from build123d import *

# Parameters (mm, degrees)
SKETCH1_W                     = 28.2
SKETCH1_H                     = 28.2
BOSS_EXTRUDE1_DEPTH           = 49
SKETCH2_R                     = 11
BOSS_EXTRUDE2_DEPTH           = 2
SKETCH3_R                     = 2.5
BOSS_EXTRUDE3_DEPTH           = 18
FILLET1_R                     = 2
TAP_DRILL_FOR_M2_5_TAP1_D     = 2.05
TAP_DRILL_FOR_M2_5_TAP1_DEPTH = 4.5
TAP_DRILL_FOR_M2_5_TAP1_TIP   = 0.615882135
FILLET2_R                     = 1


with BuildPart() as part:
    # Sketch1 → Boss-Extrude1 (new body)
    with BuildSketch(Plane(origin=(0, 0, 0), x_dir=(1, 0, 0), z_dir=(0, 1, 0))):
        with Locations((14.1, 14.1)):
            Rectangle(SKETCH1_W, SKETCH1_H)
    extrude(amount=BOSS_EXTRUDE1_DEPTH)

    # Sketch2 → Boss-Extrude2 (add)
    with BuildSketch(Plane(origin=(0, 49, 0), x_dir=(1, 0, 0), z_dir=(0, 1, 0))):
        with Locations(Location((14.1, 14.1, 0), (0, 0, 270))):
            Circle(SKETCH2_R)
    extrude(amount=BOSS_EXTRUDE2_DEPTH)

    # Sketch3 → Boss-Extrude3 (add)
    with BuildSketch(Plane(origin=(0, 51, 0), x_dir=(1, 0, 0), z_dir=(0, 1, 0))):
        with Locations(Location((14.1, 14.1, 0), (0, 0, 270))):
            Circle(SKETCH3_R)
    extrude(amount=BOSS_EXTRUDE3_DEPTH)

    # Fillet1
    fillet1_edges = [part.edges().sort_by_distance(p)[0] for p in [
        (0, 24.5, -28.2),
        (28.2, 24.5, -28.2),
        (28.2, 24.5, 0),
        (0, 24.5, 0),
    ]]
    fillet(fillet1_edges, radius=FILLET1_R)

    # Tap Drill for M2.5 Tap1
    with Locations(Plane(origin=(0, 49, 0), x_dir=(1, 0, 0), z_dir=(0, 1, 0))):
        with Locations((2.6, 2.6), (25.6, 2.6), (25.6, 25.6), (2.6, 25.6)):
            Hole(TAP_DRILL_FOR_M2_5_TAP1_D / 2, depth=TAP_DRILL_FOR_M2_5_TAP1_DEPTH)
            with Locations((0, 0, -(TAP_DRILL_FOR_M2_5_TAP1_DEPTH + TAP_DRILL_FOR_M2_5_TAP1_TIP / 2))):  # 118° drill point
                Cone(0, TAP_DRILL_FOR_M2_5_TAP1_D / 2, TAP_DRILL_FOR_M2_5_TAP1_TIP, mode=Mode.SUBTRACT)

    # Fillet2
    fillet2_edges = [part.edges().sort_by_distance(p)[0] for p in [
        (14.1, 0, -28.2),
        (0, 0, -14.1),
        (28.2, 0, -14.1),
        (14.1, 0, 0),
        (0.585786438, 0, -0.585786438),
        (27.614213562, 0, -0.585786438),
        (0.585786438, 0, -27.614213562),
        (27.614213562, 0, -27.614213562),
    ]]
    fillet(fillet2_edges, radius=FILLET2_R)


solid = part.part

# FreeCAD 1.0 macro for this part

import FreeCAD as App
import Part
import Sketcher
from FreeCAD import Vector


def edges_at(feature, points):
    """Names of the edges that pass closest to the given points."""
    edges = feature.Shape.Edges
    near = lambda p: min(range(len(edges)), key=lambda i: edges[i].distToShape(Part.Vertex(*p))[0])
    return sorted({f"Edge{near(p) + 1}" for p in points})


def add_polygon(sketch, points):
    """Adds a closed chain of lines whose ends are joined by coincident constraints."""
    first, n = sketch.GeometryCount, len(points)
    for a, b in zip(points, points[1:] + points[:1]):
        sketch.addGeometry(Part.LineSegment(App.Vector(*a, 0), App.Vector(*b, 0)), False)
    for i in range(n):
        sketch.addConstraint(Sketcher.Constraint("Coincident", first + i, 2, first + (i + 1) % n, 1))

doc = App.newDocument("Part")
params = doc.addObject("Spreadsheet::Sheet", "Params")
for row, (alias, value) in enumerate([
    ("sketch1_width", "28.2 mm"),
    ("pad1_length", "49 mm"),
    ("sketch2_diameter", "22 mm"),
    ("pad2_length", "2 mm"),
    ("sketch3_diameter", "5 mm"),
    ("pad3_length", "18 mm"),
    ("fillet_radius", "2 mm"),
    ("sketch4_diameter", "2.05 mm"),
    ("hole_diameter", "2.05 mm"),
    ("hole_depth", "4.5 mm"),
    ("fillet2_radius", "1 mm"),
], start=1):
    params.set(f"A{row}", alias)
    params.set(f"B{row}", "=" + value)
    params.setAlias(f"B{row}", alias)

body = doc.addObject("PartDesign::Body", "Body")

# Sketch on XZ plane
sketch1 = body.newObject("Sketcher::SketchObject", "Sketch")
sketch1.AttachmentSupport = (doc.getObject("XZ_Plane"), [""])
sketch1.MapMode = "FlatFace"
add_polygon(sketch1, [(0, -28), (0, 0), (28, 0), (28, -28)])  # lines 0-3
sketch1.addConstraint([
    Sketcher.Constraint("Vertical", 0),
    Sketcher.Constraint("Horizontal", 1),
    Sketcher.Constraint("Vertical", 2),
    Sketcher.Constraint("Horizontal", 3),
    Sketcher.Constraint("Coincident", 0, 2, -1, 1),
    Sketcher.Constraint("Equal", 3, 0),
    Sketcher.Constraint("DistanceX", 1, 1, 1, 2, 28.2),
])
sketch1.setExpression("Constraints[10]", "Params.sketch1_width")
pad1 = body.newObject("PartDesign::Pad", "Pad")
pad1.Profile = sketch1
pad1.setExpression("Length", "Params.pad1_length")
pad1.Reversed = True

# Sketch on XZ plane
sketch2 = body.newObject("Sketcher::SketchObject", "Sketch001")
sketch2.AttachmentSupport = (doc.getObject("XZ_Plane"), [""])
sketch2.MapMode = "FlatFace"
sketch2.AttachmentOffset = App.Placement(Vector(0, 0, -49), App.Rotation())
sketch2.addGeometry(Part.Circle(Vector(14, -14, 0), Vector(0, 0, 1), 11), False)
sketch2.addConstraint([
    Sketcher.Constraint("Diameter", 0, 22.0),
    Sketcher.Constraint("DistanceX", -1, 1, 0, 3, 14.1),
    Sketcher.Constraint("DistanceY", 0, 3, -1, 1, 14.1),
])
sketch2.setExpression("Constraints[0]", "Params.sketch2_diameter")
pad2 = body.newObject("PartDesign::Pad", "Pad001")
pad2.Profile = sketch2
pad2.setExpression("Length", "Params.pad2_length")
pad2.Reversed = True

# Sketch on XZ plane
sketch3 = body.newObject("Sketcher::SketchObject", "Sketch002")
sketch3.AttachmentSupport = (doc.getObject("XZ_Plane"), [""])
sketch3.MapMode = "FlatFace"
sketch3.AttachmentOffset = App.Placement(Vector(0, 0, -51), App.Rotation())
sketch3.addGeometry(Part.Circle(Vector(14.1, -14.1, 0), Vector(0, 0, 1), 2.5), False)
sketch3.addConstraint([
    Sketcher.Constraint("Diameter", 0, 5.0),
    Sketcher.Constraint("DistanceX", -1, 1, 0, 3, 14.1),
    Sketcher.Constraint("DistanceY", 0, 3, -1, 1, 14.1),
])
sketch3.setExpression("Constraints[0]", "Params.sketch3_diameter")
pad3 = body.newObject("PartDesign::Pad", "Pad002")
pad3.Profile = sketch3
pad3.setExpression("Length", "Params.pad3_length")
pad3.Reversed = True
doc.recompute()

fillet = body.newObject("PartDesign::Fillet", "Fillet")
fillet.Base = (pad3, edges_at(pad3, [
    (0, 24.5, -28.2),
    (28.2, 24.5, -28.2),
    (28.2, 24.5, 0),
    (0, 24.5, 0),
]))
fillet.setExpression("Radius", "Params.fillet_radius")

# Sketch on XZ plane
sketch4 = body.newObject("Sketcher::SketchObject", "Sketch003")
sketch4.AttachmentSupport = (doc.getObject("XZ_Plane"), [""])
sketch4.MapMode = "FlatFace"
sketch4.AttachmentOffset = App.Placement(Vector(0, 0, -49), App.Rotation())
sketch4.addGeometry([
    Part.Circle(Vector(2.6, -2.6, 0), Vector(0, 0, 1), 1),
    Part.Circle(Vector(25.6, -2.6, 0), Vector(0, 0, 1), 1),
    Part.Circle(Vector(25.6, -25.6, 0), Vector(0, 0, 1), 1),
    Part.Circle(Vector(2.6, -25.6, 0), Vector(0, 0, 1), 1),
], False)
sketch4.addConstraint([
    Sketcher.Constraint("Equal", 0, 1),
    Sketcher.Constraint("Equal", 1, 2),
    Sketcher.Constraint("Equal", 2, 3),
    Sketcher.Constraint("Horizontal", 0, 3, 1, 3),
    Sketcher.Constraint("Horizontal", 2, 3, 3, 3),
    Sketcher.Constraint("Vertical", 1, 3, 2, 3),
    Sketcher.Constraint("Vertical", 0, 3, 3, 3),
    Sketcher.Constraint("Diameter", 0, 2.05),
    Sketcher.Constraint("DistanceX", 0, 3, 1, 3, 23.0),
    Sketcher.Constraint("DistanceY", 2, 3, 1, 3, 23.0),
    Sketcher.Constraint("DistanceX", -1, 1, 0, 3, 2.6),
    Sketcher.Constraint("DistanceY", 0, 3, -1, 1, 2.6),
])
sketch4.setExpression("Constraints[7]", "Params.sketch4_diameter")
doc.recompute()
hole = body.newObject("PartDesign::Hole", "Hole")
hole.Profile = sketch4
hole.ThreadType = "None"
hole.setExpression("Diameter", "Params.hole_diameter")
hole.DepthType = "Dimension"
hole.setExpression("Depth", "Params.hole_depth")
hole.DrillPoint = "Angled"
hole.DrillPointAngle = 118
hole.Reversed = True
doc.recompute()

fillet2 = body.newObject("PartDesign::Fillet", "Fillet001")
fillet2.Base = (hole, edges_at(hole, [
    (14.1, 0, -28.2),
    (0, 0, -14.1),
    (28.2, 0, -14.1),
    (14.1, 0, 0),
    (0.586, 0, -0.586),
    (27.614, 0, -0.586),
    (0.586, 0, -27.614),
    (27.614, 0, -27.614),
]))
fillet2.setExpression("Radius", "Params.fillet2_radius")

doc.recompute()
